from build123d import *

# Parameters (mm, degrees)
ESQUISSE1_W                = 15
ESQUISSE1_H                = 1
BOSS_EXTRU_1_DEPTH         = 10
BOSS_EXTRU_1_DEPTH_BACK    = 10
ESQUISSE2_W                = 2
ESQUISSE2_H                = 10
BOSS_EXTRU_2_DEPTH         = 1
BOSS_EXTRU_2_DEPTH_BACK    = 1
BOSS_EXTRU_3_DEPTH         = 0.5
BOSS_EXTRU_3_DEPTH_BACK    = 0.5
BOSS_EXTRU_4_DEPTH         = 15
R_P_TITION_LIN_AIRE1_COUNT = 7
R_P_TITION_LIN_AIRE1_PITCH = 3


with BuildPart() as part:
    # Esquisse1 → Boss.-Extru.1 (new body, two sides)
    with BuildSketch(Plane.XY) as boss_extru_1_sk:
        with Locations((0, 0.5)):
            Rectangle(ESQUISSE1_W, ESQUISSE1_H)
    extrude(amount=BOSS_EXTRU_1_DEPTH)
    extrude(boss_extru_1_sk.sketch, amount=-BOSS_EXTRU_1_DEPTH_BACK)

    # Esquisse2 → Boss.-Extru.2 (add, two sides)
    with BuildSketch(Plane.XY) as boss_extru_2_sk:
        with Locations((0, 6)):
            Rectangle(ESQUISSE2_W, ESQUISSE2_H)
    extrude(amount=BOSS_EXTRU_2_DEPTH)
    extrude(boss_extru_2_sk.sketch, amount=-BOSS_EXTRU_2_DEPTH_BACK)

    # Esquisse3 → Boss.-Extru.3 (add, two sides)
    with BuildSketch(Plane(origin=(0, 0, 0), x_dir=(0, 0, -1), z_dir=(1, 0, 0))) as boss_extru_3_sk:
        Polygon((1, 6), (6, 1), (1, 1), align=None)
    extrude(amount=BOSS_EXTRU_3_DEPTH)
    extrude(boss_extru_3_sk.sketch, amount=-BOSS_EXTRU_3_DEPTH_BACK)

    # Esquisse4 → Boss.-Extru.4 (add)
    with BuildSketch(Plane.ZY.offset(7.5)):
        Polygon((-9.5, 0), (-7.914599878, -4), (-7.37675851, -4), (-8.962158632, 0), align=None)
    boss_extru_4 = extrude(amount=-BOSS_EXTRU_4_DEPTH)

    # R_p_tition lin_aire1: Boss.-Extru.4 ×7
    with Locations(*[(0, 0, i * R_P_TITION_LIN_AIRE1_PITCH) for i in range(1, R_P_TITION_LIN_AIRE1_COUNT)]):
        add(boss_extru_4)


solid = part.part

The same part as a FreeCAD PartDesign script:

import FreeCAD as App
import Part
import Sketcher

V = App.Vector


def add_polygon(sketch, points):
    """Adds a closed chain of lines whose ends are joined by coincident constraints."""
    first, n = sketch.GeometryCount, len(points)
    for a, b in zip(points, points[1:] + points[:1]):
        sketch.addGeometry(Part.LineSegment(App.Vector(*a, 0), App.Vector(*b, 0)), False)
    for i in range(n):
        sketch.addConstraint(Sketcher.Constraint("Coincident", first + i, 2, first + (i + 1) % n, 1))

doc = App.newDocument("Part")
params = doc.addObject("Spreadsheet::Sheet", "Params")
for row, (alias, value) in enumerate([
    ("sketch1_width", "15 mm"),
    ("sketch1_height", "1 mm"),
    ("pad1_length", "10 mm"),
    ("pad1_length2", "10 mm"),
    ("sketch2_width", "2 mm"),
    ("sketch2_height", "10 mm"),
    ("pad2_length", "1 mm"),
    ("pad2_length2", "1 mm"),
    ("sketch3_width", "5 mm"),
    ("pad3_length", "0.5 mm"),
    ("pad3_length2", "0.5 mm"),
    ("pad4_length", "15 mm"),
    ("linearpattern_pitch", "3 mm"),
], start=1):
    params.set(f"A{row}", alias)
    params.set(f"B{row}", "=" + value)
    params.setAlias(f"B{row}", alias)

body = doc.addObject("PartDesign::Body", "Body")

# Sketch on XY plane
sketch1 = body.newObject("Sketcher::SketchObject", "Sketch")
sketch1.AttachmentSupport = (doc.getObject("XY_Plane"), [""])
sketch1.MapMode = "FlatFace"
add_polygon(sketch1, [(-7.5, 1), (-7.5, 0), (7.5, 0), (7.5, 1)])  # lines 0-3
sketch1.addConstraint(Sketcher.Constraint("Vertical", 0))
sketch1.addConstraint(Sketcher.Constraint("Horizontal", 1))
sketch1.addConstraint(Sketcher.Constraint("Vertical", 2))
sketch1.addConstraint(Sketcher.Constraint("Horizontal", 3))
sketch1.addConstraint(Sketcher.Constraint("Symmetric", 0, 2, 1, 2, -1, 1))
sketch1.addConstraint(Sketcher.Constraint("DistanceX", 1, 1, 1, 2, 15.0))
sketch1.addConstraint(Sketcher.Constraint("DistanceY", 0, 2, 0, 1, 1.0))
sketch1.setExpression("Constraints[9]", "Params.sketch1_width")
sketch1.setExpression("Constraints[10]", "Params.sketch1_height")
pad1 = body.newObject("PartDesign::Pad", "Pad")
pad1.Profile = sketch1
pad1.Type = "TwoLengths"
pad1.setExpression("Length", "Params.pad1_length")
pad1.setExpression("Length2", "Params.pad1_length2")

# Sketch on XY plane
sketch2 = body.newObject("Sketcher::SketchObject", "Sketch001")
sketch2.AttachmentSupport = (doc.getObject("XY_Plane"), [""])
sketch2.MapMode = "FlatFace"
add_polygon(sketch2, [(-1, 11), (-1, 1), (1, 1), (1, 11)])  # lines 0-3
sketch2.addConstraint(Sketcher.Constraint("Vertical", 0))
sketch2.addConstraint(Sketcher.Constraint("Horizontal", 1))
sketch2.addConstraint(Sketcher.Constraint("Vertical", 2))
sketch2.addConstraint(Sketcher.Constraint("Horizontal", 3))
sketch2.addConstraint(Sketcher.Constraint("DistanceX", 1, 1, 1, 2, 2.0))
sketch2.addConstraint(Sketcher.Constraint("DistanceY", 0, 2, 0, 1, 10.0))
sketch2.addConstraint(Sketcher.Constraint("DistanceX", 0, 2, -1, 1, 1.0))
sketch2.addConstraint(Sketcher.Constraint("DistanceY", -1, 1, 0, 2, 1.0))
sketch2.setExpression("Constraints[8]", "Params.sketch2_width")
sketch2.setExpression("Constraints[9]", "Params.sketch2_height")
pad2 = body.newObject("PartDesign::Pad", "Pad001")
pad2.Profile = sketch2
pad2.Type = "TwoLengths"
pad2.setExpression("Length", "Params.pad2_length")
pad2.setExpression("Length2", "Params.pad2_length2")

# Sketch on YZ plane
sketch3 = body.newObject("Sketcher::SketchObject", "Sketch002")
sketch3.AttachmentSupport = (doc.getObject("YZ_Plane"), [""])
sketch3.MapMode = "FlatFace"
add_polygon(sketch3, [(1, -6), (6, -1), (1, -1)])  # lines 0-2
sketch3.addConstraint(Sketcher.Constraint("Horizontal", 1))
sketch3.addConstraint(Sketcher.Constraint("Vertical", 2))
sketch3.addConstraint(Sketcher.Constraint("Equal", 1, 2))
sketch3.addConstraint(Sketcher.Constraint("DistanceX", 1, 2, 1, 1, 5.0))
sketch3.addConstraint(Sketcher.Constraint("DistanceX", -1, 1, 0, 2, 6.0))
sketch3.addConstraint(Sketcher.Constraint("DistanceY", 0, 2, -1, 1, 1.0))
sketch3.setExpression("Constraints[6]", "Params.sketch3_width")
pad3 = body.newObject("PartDesign::Pad", "Pad002")
pad3.Profile = sketch3
pad3.Type = "TwoLengths"
pad3.setExpression("Length", "Params.pad3_length")
pad3.setExpression("Length2", "Params.pad3_length2")

# Sketch on YZ plane
sketch4 = body.newObject("Sketcher::SketchObject", "Sketch003")
sketch4.AttachmentSupport = (doc.getObject("YZ_Plane"), [""])
sketch4.MapMode = "FlatFace"
sketch4.AttachmentOffset = App.Placement(V(0, 0, -7.5), App.Rotation())
add_polygon(sketch4, [(0, -9.5), (-4, -7.9), (-4, -7.4), (0, -9)])  # lines 0-3
sketch4.addConstraint(Sketcher.Constraint("Vertical", 1))
sketch4.addConstraint(Sketcher.Constraint("Vertical", 3))
sketch4.addConstraint(Sketcher.Constraint("PointOnObject", 2, 2, -2))
sketch4.addConstraint(Sketcher.Constraint("Parallel", 0, 2))
sketch4.addConstraint(Sketcher.Constraint("DistanceX", 0, 2, -1, 1, 4.0))
sketch4.addConstraint(Sketcher.Constraint("DistanceY", 3, 2, -1, 1, 9.5))
sketch4.addConstraint(Sketcher.Constraint("DistanceY", 1, 1, 1, 2, 0.537841))
sketch4.addConstraint(Sketcher.Constraint("DistanceY", 0, 2, -1, 1, 7.9146))
pad4 = body.newObject("PartDesign::Pad", "Pad003")
pad4.Profile = sketch4
pad4.setExpression("Length", "Params.pad4_length")
doc.recompute()

linearpattern = body.newObject("PartDesign::LinearPattern", "LinearPattern")
linearpattern.Originals = [pad4]
linearpattern.Direction = (doc.getObject("Z_Axis"), [""])
linearpattern.Mode = "offset"
linearpattern.setExpression("Offset", "Params.linearpattern_pitch")
linearpattern.Occurrences = 7
body.Tip = linearpattern

doc.recompute()
